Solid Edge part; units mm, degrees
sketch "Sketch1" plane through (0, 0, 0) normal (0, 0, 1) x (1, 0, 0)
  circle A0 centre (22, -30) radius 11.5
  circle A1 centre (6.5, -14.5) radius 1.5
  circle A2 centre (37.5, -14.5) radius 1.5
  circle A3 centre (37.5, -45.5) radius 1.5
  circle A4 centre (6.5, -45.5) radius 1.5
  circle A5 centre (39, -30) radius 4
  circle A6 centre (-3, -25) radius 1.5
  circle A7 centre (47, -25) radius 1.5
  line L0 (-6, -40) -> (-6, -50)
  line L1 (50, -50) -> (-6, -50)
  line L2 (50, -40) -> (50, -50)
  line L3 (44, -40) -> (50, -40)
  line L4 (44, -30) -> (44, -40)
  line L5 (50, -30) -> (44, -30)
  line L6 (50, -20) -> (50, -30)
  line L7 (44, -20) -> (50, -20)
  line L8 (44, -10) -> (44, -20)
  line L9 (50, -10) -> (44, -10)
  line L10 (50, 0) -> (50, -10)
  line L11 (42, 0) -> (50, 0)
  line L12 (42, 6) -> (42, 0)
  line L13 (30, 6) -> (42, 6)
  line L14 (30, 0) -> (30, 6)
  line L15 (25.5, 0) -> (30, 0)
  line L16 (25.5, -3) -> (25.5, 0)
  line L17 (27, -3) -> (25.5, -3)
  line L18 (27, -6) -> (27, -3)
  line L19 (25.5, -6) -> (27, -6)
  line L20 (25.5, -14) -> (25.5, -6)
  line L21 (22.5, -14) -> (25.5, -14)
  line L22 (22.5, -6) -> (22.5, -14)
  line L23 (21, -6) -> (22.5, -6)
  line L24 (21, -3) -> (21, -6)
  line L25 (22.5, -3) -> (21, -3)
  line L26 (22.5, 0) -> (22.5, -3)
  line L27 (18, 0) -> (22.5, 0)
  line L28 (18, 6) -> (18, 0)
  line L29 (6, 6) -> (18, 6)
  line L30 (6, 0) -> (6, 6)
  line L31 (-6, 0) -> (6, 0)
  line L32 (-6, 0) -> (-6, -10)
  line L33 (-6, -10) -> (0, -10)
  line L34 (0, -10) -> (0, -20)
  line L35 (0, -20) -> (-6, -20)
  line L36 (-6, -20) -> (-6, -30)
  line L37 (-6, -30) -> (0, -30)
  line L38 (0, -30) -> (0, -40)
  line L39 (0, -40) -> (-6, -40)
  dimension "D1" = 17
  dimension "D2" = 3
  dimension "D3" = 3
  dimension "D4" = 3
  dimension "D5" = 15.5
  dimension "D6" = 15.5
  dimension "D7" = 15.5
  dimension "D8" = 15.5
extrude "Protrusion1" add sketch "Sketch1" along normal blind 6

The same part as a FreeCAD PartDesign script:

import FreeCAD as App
import Part
import Sketcher
from FreeCAD import Vector
Q = App.Units.Quantity

doc = App.newDocument("Part")
params = doc.addObject("Spreadsheet::Sheet", "Params")
for row, (alias, value) in enumerate([
    ("sketch1_diameter", "3 mm"),
    ("sketch1_diameter2", "23 mm"),
    ("sketch1_diameter3", "8 mm"),
    ("sketch1_width", "6 mm"),
    ("sketch1_width2", "56 mm"),
    ("pad1_length", "6 mm"),
], start=1):
    params.set(f"A{row}", alias)
    params.set(f"B{row}", "=" + value)
    params.setAlias(f"B{row}", alias)

body = doc.addObject("PartDesign::Body", "Body")

# Sketch on XY plane
sketch1 = doc.addObject("Sketcher::SketchObject", "Sketch")
body.addObject(sketch1)
sketch1.AttachmentSupport = (doc.XY_Plane, [""])
sketch1.MapMode = "FlatFace"
sketch1.addGeometry([
    Part.LineSegment(Vector(0, -40, 0), Vector(-6, -40, 0)),  # 0
    Part.LineSegment(Vector(-6, -40, 0), Vector(-6, -50, 0)),  # 1
    Part.LineSegment(Vector(-6, -50, 0), Vector(50, -50, 0)),  # 2
    Part.LineSegment(Vector(50, -50, 0), Vector(50, -40, 0)),  # 3
    Part.LineSegment(Vector(50, -40, 0), Vector(44, -40, 0)),  # 4
    Part.LineSegment(Vector(44, -40, 0), Vector(44, -30, 0)),  # 5
    Part.LineSegment(Vector(44, -30, 0), Vector(50, -30, 0)),  # 6
    Part.LineSegment(Vector(50, -30, 0), Vector(50, -20, 0)),  # 7
    Part.LineSegment(Vector(50, -20, 0), Vector(44, -20, 0)),  # 8
    Part.LineSegment(Vector(44, -20, 0), Vector(44, -10, 0)),  # 9
    Part.LineSegment(Vector(44, -10, 0), Vector(50, -10, 0)),  # 10
    Part.LineSegment(Vector(50, -10, 0), Vector(50, 0, 0)),  # 11
    Part.LineSegment(Vector(50, 0, 0), Vector(42, 0, 0)),  # 12
    Part.LineSegment(Vector(42, 0, 0), Vector(42, 6, 0)),  # 13
    Part.LineSegment(Vector(42, 6, 0), Vector(30, 6, 0)),  # 14
    Part.LineSegment(Vector(30, 6, 0), Vector(30, 0, 0)),  # 15
    Part.LineSegment(Vector(30, 0, 0), Vector(25.5, 0, 0)),  # 16
    Part.LineSegment(Vector(25.5, 0, 0), Vector(25.5, -3, 0)),  # 17
    Part.LineSegment(Vector(25.5, -3, 0), Vector(27, -3, 0)),  # 18
    Part.LineSegment(Vector(27, -3, 0), Vector(27, -6, 0)),  # 19
    Part.LineSegment(Vector(27, -6, 0), Vector(25.5, -6, 0)),  # 20
    Part.LineSegment(Vector(25.5, -6, 0), Vector(25.5, -14, 0)),  # 21
    Part.LineSegment(Vector(25.5, -14, 0), Vector(22.5, -14, 0)),  # 22
    Part.LineSegment(Vector(22.5, -14, 0), Vector(22.5, -6, 0)),  # 23
    Part.LineSegment(Vector(22.5, -6, 0), Vector(21, -6, 0)),  # 24
    Part.LineSegment(Vector(21, -6, 0), Vector(21, -3, 0)),  # 25
    Part.LineSegment(Vector(21, -3, 0), Vector(22.5, -3, 0)),  # 26
    Part.LineSegment(Vector(22.5, -3, 0), Vector(22.5, 0, 0)),  # 27
    Part.LineSegment(Vector(22.5, 0, 0), Vector(18, 0, 0)),  # 28
    Part.LineSegment(Vector(18, 0, 0), Vector(18, 6, 0)),  # 29
    Part.LineSegment(Vector(18, 6, 0), Vector(6, 6, 0)),  # 30
    Part.LineSegment(Vector(6, 6, 0), Vector(6, 0, 0)),  # 31
    Part.LineSegment(Vector(6, 0, 0), Vector(-6, 0, 0)),  # 32
    Part.LineSegment(Vector(-6, 0, 0), Vector(-6, -10, 0)),  # 33
    Part.LineSegment(Vector(-6, -10, 0), Vector(0, -10, 0)),  # 34
    Part.LineSegment(Vector(0, -10, 0), Vector(0, -20, 0)),  # 35
    Part.LineSegment(Vector(0, -20, 0), Vector(-6, -20, 0)),  # 36
    Part.LineSegment(Vector(-6, -20, 0), Vector(-6, -30, 0)),  # 37
    Part.LineSegment(Vector(-6, -30, 0), Vector(0, -30, 0)),  # 38
    Part.LineSegment(Vector(0, -30, 0), Vector(0, -40, 0)),  # 39
    Part.Circle(Vector(6.5, -45.5, 0), Vector(0, 0, 1), 1.5),  # 40
    Part.Circle(Vector(-3, -25, 0), Vector(0, 0, 1), 1.5),  # 41
    Part.Circle(Vector(37.5, -45.5, 0), Vector(0, 0, 1), 1.5),  # 42
    Part.Circle(Vector(22, -30, 0), Vector(0, 0, 1), 11.5),  # 43
    Part.Circle(Vector(39, -30, 0), Vector(0, 0, 1), 4),  # 44
    Part.Circle(Vector(47, -25, 0), Vector(0, 0, 1), 1.5),  # 45
    Part.Circle(Vector(6.5, -14.5, 0), Vector(0, 0, 1), 1.5),  # 46
    Part.Circle(Vector(37.5, -14.5, 0), Vector(0, 0, 1), 1.5),  # 47
], False)
sketch1.addConstraint([
    Sketcher.Constraint("Coincident", 0, 2, 1, 1),
    Sketcher.Constraint("Coincident", 1, 2, 2, 1),
    Sketcher.Constraint("Coincident", 2, 2, 3, 1),
    Sketcher.Constraint("Coincident", 3, 2, 4, 1),
    Sketcher.Constraint("Coincident", 4, 2, 5, 1),
    Sketcher.Constraint("Coincident", 5, 2, 6, 1),
    Sketcher.Constraint("Coincident", 6, 2, 7, 1),
    Sketcher.Constraint("Coincident", 7, 2, 8, 1),
    Sketcher.Constraint("Coincident", 8, 2, 9, 1),
    Sketcher.Constraint("Coincident", 9, 2, 10, 1),
    Sketcher.Constraint("Coincident", 10, 2, 11, 1),
    Sketcher.Constraint("Coincident", 11, 2, 12, 1),
    Sketcher.Constraint("Coincident", 12, 2, 13, 1),
    Sketcher.Constraint("Coincident", 13, 2, 14, 1),
    Sketcher.Constraint("Coincident", 14, 2, 15, 1),
    Sketcher.Constraint("Coincident", 15, 2, 16, 1),
    Sketcher.Constraint("Coincident", 16, 2, 17, 1),
    Sketcher.Constraint("Coincident", 17, 2, 18, 1),
    Sketcher.Constraint("Coincident", 18, 2, 19, 1),
    Sketcher.Constraint("Coincident", 19, 2, 20, 1),
    Sketcher.Constraint("Coincident", 20, 2, 21, 1),
    Sketcher.Constraint("Coincident", 21, 2, 22, 1),
    Sketcher.Constraint("Coincident", 22, 2, 23, 1),
    Sketcher.Constraint("Coincident", 23, 2, 24, 1),
    Sketcher.Constraint("Coincident", 24, 2, 25, 1),
    Sketcher.Constraint("Coincident", 25, 2, 26, 1),
    Sketcher.Constraint("Coincident", 26, 2, 27, 1),
    Sketcher.Constraint("Coincident", 27, 2, 28, 1),
    Sketcher.Constraint("Coincident", 28, 2, 29, 1),
    Sketcher.Constraint("Coincident", 29, 2, 30, 1),
    Sketcher.Constraint("Coincident", 30, 2, 31, 1),
    Sketcher.Constraint("Coincident", 31, 2, 32, 1),
    Sketcher.Constraint("Coincident", 32, 2, 33, 1),
    Sketcher.Constraint("Coincident", 33, 2, 34, 1),
    Sketcher.Constraint("Coincident", 34, 2, 35, 1),
    Sketcher.Constraint("Coincident", 35, 2, 36, 1),
    Sketcher.Constraint("Coincident", 36, 2, 37, 1),
    Sketcher.Constraint("Coincident", 37, 2, 38, 1),
    Sketcher.Constraint("Coincident", 38, 2, 39, 1),
    Sketcher.Constraint("Coincident", 39, 2, 0, 1),
    Sketcher.Constraint("Horizontal", 0),
    Sketcher.Constraint("Vertical", 1),
    Sketcher.Constraint("Horizontal", 2),
    Sketcher.Constraint("Vertical", 3),
    Sketcher.Constraint("Horizontal", 4),
    Sketcher.Constraint("Vertical", 5),
    Sketcher.Constraint("Horizontal", 6),
    Sketcher.Constraint("Vertical", 7),
    Sketcher.Constraint("Horizontal", 8),
    Sketcher.Constraint("Vertical", 9),
    Sketcher.Constraint("Horizontal", 10),
    Sketcher.Constraint("Vertical", 11),
    Sketcher.Constraint("Horizontal", 12),
    Sketcher.Constraint("Vertical", 13),
    Sketcher.Constraint("Horizontal", 14),
    Sketcher.Constraint("Vertical", 15),
    Sketcher.Constraint("Horizontal", 16),
    Sketcher.Constraint("Vertical", 17),
    Sketcher.Constraint("Horizontal", 18),
    Sketcher.Constraint("Vertical", 19),
    Sketcher.Constraint("Horizontal", 20),
    Sketcher.Constraint("Vertical", 21),
    Sketcher.Constraint("Horizontal", 22),
    Sketcher.Constraint("Vertical", 23),
    Sketcher.Constraint("Horizontal", 24),
    Sketcher.Constraint("Vertical", 25),
    Sketcher.Constraint("Horizontal", 26),
    Sketcher.Constraint("Vertical", 27),
    Sketcher.Constraint("Horizontal", 28),
    Sketcher.Constraint("Vertical", 29),
    Sketcher.Constraint("Horizontal", 30),
    Sketcher.Constraint("Vertical", 31),
    Sketcher.Constraint("Horizontal", 32),
    Sketcher.Constraint("Vertical", 33),
    Sketcher.Constraint("Horizontal", 34),
    Sketcher.Constraint("Vertical", 35),
    Sketcher.Constraint("Horizontal", 36),
    Sketcher.Constraint("Vertical", 37),
    Sketcher.Constraint("Horizontal", 38),
    Sketcher.Constraint("Vertical", 39),
    Sketcher.Constraint("Equal", 40, 41),
    Sketcher.Constraint("Equal", 41, 42),
    Sketcher.Constraint("Equal", 42, 45),
    Sketcher.Constraint("Equal", 45, 46),
    Sketcher.Constraint("Equal", 46, 47),
    Sketcher.Constraint("Symmetric", 31, 2, 32, 2, -1, 1),
    Sketcher.Constraint("PointOnObject", 11, 2, -1),
    Sketcher.Constraint("PointOnObject", 15, 2, -1),
    Sketcher.Constraint("PointOnObject", 27, 2, -1),
    Sketcher.Constraint("PointOnObject", 34, 2, -2),
    Sketcher.Constraint("PointOnObject", 38, 2, -2),
    Sketcher.Constraint("Horizontal", 40, 3, 42, 3),
    Sketcher.Constraint("Horizontal", 43, 3, 44, 3),
    Sketcher.Constraint("Horizontal", 41, 3, 45, 3),
    Sketcher.Constraint("Horizontal", 46, 3, 47, 3),
    Sketcher.Constraint("Horizontal", 0, 2, 3, 2),
    Sketcher.Constraint("Horizontal", 44, 3, 5, 2),
    Sketcher.Constraint("Horizontal", 20, 2, 23, 2),
    Sketcher.Constraint("Horizontal", 18, 2, 25, 2),
    Sketcher.Constraint("Horizontal", 14, 2, 29, 2),
    Sketcher.Constraint("Horizontal", 10, 2, 33, 2),
    Sketcher.Constraint("Horizontal", 8, 2, 35, 2),
    Sketcher.Constraint("Horizontal", 6, 2, 37, 2),
    Sketcher.Constraint("Vertical", 40, 3, 46, 3),
    Sketcher.Constraint("Vertical", 42, 3, 47, 3),
    Sketcher.Constraint("Vertical", 3, 2, 6, 2),
    Sketcher.Constraint("Vertical", 5, 2, 8, 2),
    Sketcher.Constraint("Vertical", 7, 2, 10, 2),
    Sketcher.Constraint("Vertical", 17, 2, 20, 2),
    Sketcher.Constraint("Vertical", 23, 2, 26, 2),
    Sketcher.Constraint("Vertical", 1, 2, 32, 2),
    Sketcher.Constraint("Vertical", 33, 2, 36, 2),
    Sketcher.Constraint("Equal", 0, 4),
    Sketcher.Constraint("Equal", 20, 24),
    Sketcher.Constraint("Equal", 16, 28),
    Sketcher.Constraint("Equal", 14, 30),
    Sketcher.Constraint("Equal", 30, 32),
    Sketcher.Constraint("Equal", 3, 5),
    Sketcher.Constraint("Equal", 5, 7),
    Sketcher.Constraint("Equal", 7, 9),
    Sketcher.Constraint("Equal", 9, 11),
    Sketcher.Constraint("Equal", 38, 13),
    Sketcher.Constraint("Equal", 22, 17),
    Sketcher.Constraint("Equal", 17, 19),
    Sketcher.Constraint("Equal", 12, 21),
    Sketcher.Constraint("Diameter", 40, Q("3 mm")),
    Sketcher.Constraint("Diameter", 43, Q("23 mm")),
    Sketcher.Constraint("Diameter", 44, Q("8 mm")),
    Sketcher.Constraint("DistanceX", -1, 1, 18, 2, Q("27 mm")),
    Sketcher.Constraint("DistanceX", -1, 1, 24, 2, Q("21 mm")),
    Sketcher.Constraint("DistanceX", -1, 1, 22, 2, Q("22.5 mm")),
    Sketcher.Constraint("DistanceX", 0, 2, 0, 1, Q("6 mm")),
    Sketcher.Constraint("DistanceX", 2, 1, 2, 2, Q("56 mm")),
    Sketcher.Constraint("DistanceY", 1, 2, 1, 1, Q("10 mm")),
    Sketcher.Constraint("DistanceX", 41, 3, -1, 1, Q("3 mm")),
    Sketcher.Constraint("DistanceY", 41, 3, -1, 1, Q("25 mm")),
    Sketcher.Constraint("DistanceX", -1, 1, 43, 3, Q("22 mm")),
    Sketcher.Constraint("DistanceX", -1, 1, 44, 3, Q("39 mm")),
    Sketcher.Constraint("DistanceX", -1, 1, 45, 3, Q("47 mm")),
    Sketcher.Constraint("DistanceX", 40, 3, 42, 3, Q("31 mm")),
    Sketcher.Constraint("DistanceY", 40, 3, 46, 3, Q("31 mm")),
    Sketcher.Constraint("DistanceX", 16, 2, 47, 3, Q("12 mm")),
    Sketcher.Constraint("DistanceY", 40, 3, -1, 1, Q("45.5 mm")),
])
sketch1.setExpression("Constraints[125]", "Params.sketch1_diameter")
sketch1.setExpression("Constraints[126]", "Params.sketch1_diameter2")
sketch1.setExpression("Constraints[127]", "Params.sketch1_diameter3")
sketch1.setExpression("Constraints[131]", "Params.sketch1_width")
sketch1.setExpression("Constraints[132]", "Params.sketch1_width2")
pad1 = doc.addObject("PartDesign::Pad", "Pad")
body.addObject(pad1)
pad1.Profile = sketch1
pad1.setExpression("Length", "Params.pad1_length")

doc.recompute()
